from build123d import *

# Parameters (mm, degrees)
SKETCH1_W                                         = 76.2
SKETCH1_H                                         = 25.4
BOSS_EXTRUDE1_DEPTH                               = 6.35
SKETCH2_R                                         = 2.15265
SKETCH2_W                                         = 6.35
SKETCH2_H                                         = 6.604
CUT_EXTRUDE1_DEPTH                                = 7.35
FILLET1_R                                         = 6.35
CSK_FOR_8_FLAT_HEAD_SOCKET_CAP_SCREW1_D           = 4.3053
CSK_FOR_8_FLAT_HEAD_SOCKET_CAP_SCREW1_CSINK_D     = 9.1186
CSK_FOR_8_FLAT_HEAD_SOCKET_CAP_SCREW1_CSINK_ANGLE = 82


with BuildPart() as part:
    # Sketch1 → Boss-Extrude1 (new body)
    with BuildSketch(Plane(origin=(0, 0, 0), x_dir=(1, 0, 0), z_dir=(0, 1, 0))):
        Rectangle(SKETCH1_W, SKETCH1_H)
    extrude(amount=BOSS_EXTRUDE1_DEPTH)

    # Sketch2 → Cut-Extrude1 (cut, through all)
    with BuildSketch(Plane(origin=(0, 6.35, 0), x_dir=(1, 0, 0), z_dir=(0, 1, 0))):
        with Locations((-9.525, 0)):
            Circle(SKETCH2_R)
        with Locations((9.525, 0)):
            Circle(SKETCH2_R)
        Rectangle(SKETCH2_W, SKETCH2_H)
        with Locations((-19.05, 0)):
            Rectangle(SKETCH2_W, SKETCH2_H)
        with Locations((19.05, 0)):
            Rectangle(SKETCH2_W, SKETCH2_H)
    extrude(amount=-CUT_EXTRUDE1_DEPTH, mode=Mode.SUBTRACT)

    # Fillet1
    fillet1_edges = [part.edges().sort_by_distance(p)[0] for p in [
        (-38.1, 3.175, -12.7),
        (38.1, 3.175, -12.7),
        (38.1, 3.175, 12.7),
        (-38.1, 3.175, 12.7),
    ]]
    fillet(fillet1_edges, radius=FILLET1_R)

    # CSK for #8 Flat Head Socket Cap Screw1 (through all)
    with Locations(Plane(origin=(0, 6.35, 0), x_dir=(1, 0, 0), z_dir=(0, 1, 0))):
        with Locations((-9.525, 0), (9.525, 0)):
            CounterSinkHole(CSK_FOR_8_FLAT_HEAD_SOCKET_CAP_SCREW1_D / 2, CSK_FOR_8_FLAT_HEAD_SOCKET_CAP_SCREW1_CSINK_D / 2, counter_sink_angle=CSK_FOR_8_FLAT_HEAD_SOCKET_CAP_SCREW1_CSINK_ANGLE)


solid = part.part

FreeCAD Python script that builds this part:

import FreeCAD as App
import Part
import Sketcher
from FreeCAD import Vector
Q = App.Units.Quantity


def edges_at(feature, points):
    """Names of the edges that pass closest to the given points."""
    edges = feature.Shape.Edges
    near = lambda p: min(range(len(edges)), key=lambda i: edges[i].distToShape(Part.Vertex(*p))[0])
    return sorted({f"Edge{near(p) + 1}" for p in points})


def add_polygon(sketch, points):
    """Adds a closed chain of lines whose ends are joined by coincident constraints."""
    first, n = sketch.GeometryCount, len(points)
    for a, b in zip(points, points[1:] + points[:1]):
        sketch.addGeometry(Part.LineSegment(App.Vector(*a, 0), App.Vector(*b, 0)), False)
    for i in range(n):
        sketch.addConstraint(Sketcher.Constraint("Coincident", first + i, 2, first + (i + 1) % n, 1))

doc = App.newDocument("Part")
body = doc.addObject("PartDesign::Body", "Body")

sketch1 = doc.addObject("Sketcher::SketchObject", "Sketch")
body.addObject(sketch1)
sketch1.AttachmentSupport = (doc.XZ_Plane, [""])
sketch1.MapMode = "FlatFace"
add_polygon(sketch1, [(-38.1, -12.7), (-38.1, 12.7), (38.1, 12.7), (38.1, -12.7)])
sketch1.addConstraint(Sketcher.Constraint("Vertical", 0))
sketch1.addConstraint(Sketcher.Constraint("Horizontal", 1))
sketch1.addConstraint(Sketcher.Constraint("Vertical", 2))
sketch1.addConstraint(Sketcher.Constraint("Horizontal", 3))
sketch1.addConstraint(Sketcher.Constraint("Symmetric", 0, 2, 2, 2, -1, 1))
sketch1.addConstraint(Sketcher.Constraint("DistanceX", 1, 1, 1, 2, Q("3 in")))
sketch1.addConstraint(Sketcher.Constraint("DistanceY", 0, 1, 0, 2, Q("1 in")))
pad1 = doc.addObject("PartDesign::Pad", "Pad")
body.addObject(pad1)
pad1.Profile = sketch1
pad1.Length = Q("0.25 in")
pad1.Reversed = True

sketch2 = doc.addObject("Sketcher::SketchObject", "Sketch001")
body.addObject(sketch2)
sketch2.AttachmentSupport = (doc.XZ_Plane, [""])
sketch2.MapMode = "FlatFace"
sketch2.AttachmentOffset = App.Placement(Vector(0, 0, -0.25 * 25.4), App.Rotation())
sketch2.addGeometry(Part.Circle(Vector(-9.525, 0, 0), Vector(0, 0, 1), 2.15265), False)
sketch2.addGeometry(Part.Circle(Vector(9.525, 0, 0), Vector(0, 0, 1), 2.15265), False)
add_polygon(sketch2, [(-3.175, -3.302), (-3.175, 3.302), (3.175, 3.302), (3.175, -3.302)])
add_polygon(sketch2, [(-22.225, -3.302), (-22.225, 3.302), (-15.875, 3.302), (-15.875, -3.302)])
add_polygon(sketch2, [(15.875, -3.302), (15.875, 3.302), (22.225, 3.302), (22.225, -3.302)])
sketch2.addConstraint(Sketcher.Constraint("Vertical", 2))
sketch2.addConstraint(Sketcher.Constraint("Horizontal", 3))
sketch2.addConstraint(Sketcher.Constraint("Vertical", 4))
sketch2.addConstraint(Sketcher.Constraint("Horizontal", 5))
sketch2.addConstraint(Sketcher.Constraint("Vertical", 6))
sketch2.addConstraint(Sketcher.Constraint("Horizontal", 7))
sketch2.addConstraint(Sketcher.Constraint("Vertical", 8))
sketch2.addConstraint(Sketcher.Constraint("Horizontal", 9))
sketch2.addConstraint(Sketcher.Constraint("Vertical", 10))
sketch2.addConstraint(Sketcher.Constraint("Horizontal", 11))
sketch2.addConstraint(Sketcher.Constraint("Vertical", 12))
sketch2.addConstraint(Sketcher.Constraint("Horizontal", 13))
sketch2.addConstraint(Sketcher.Constraint("Equal", 0, 1))
sketch2.addConstraint(Sketcher.Constraint("Symmetric", 0, 3, 1, 3, -1, 1))
sketch2.addConstraint(Sketcher.Constraint("Symmetric", 2, 2, 4, 2, -1, 1))
sketch2.addConstraint(Sketcher.Constraint("Symmetric", 8, 2, 10, 2, -1, 1))
sketch2.addConstraint(Sketcher.Constraint("Symmetric", 6, 2, 12, 2, -1, 1))
sketch2.addConstraint(Sketcher.Constraint("PointOnObject", 0, 3, -1))
sketch2.addConstraint(Sketcher.Constraint("Horizontal", 3, 2, 6, 2))
sketch2.addConstraint(Sketcher.Constraint("Horizontal", 5, 2, 8, 2))
sketch2.addConstraint(Sketcher.Constraint("Equal", 5, 7))
sketch2.addConstraint(Sketcher.Constraint("DistanceX", 6, 2, 3, 2, Q("1 in")))
sketch2.addConstraint(Sketcher.Constraint("Diameter", 0, Q("0.1695 in")))
sketch2.addConstraint(Sketcher.Constraint("DistanceX", 3, 1, 3, 2, Q("0.25 in")))
sketch2.addConstraint(Sketcher.Constraint("DistanceY", 2, 1, 2, 2, Q("0.26 in")))
sketch2.addConstraint(Sketcher.Constraint("DistanceX", 2, 2, 1, 3, Q("0.5 in")))
pocket1 = doc.addObject("PartDesign::Pocket", "Pocket")
body.addObject(pocket1)
pocket1.Profile = sketch2
pocket1.Type = "ThroughAll"
pocket1.Reversed = True
doc.recompute()

fillet = doc.addObject("PartDesign::Fillet", "Fillet")
body.addObject(fillet)
fillet.Base = (pocket1, edges_at(pocket1, [
    (-38.1, 3.175, -12.7),
    (38.1, 3.175, -12.7),
    (38.1, 3.175, 12.7),
    (-38.1, 3.175, 12.7),
]))
fillet.Radius = Q("0.25 in")

sketch3 = doc.addObject("Sketcher::SketchObject", "Sketch002")
body.addObject(sketch3)
sketch3.AttachmentSupport = (doc.XZ_Plane, [""])
sketch3.MapMode = "FlatFace"
sketch3.AttachmentOffset = App.Placement(Vector(0, 0, -0.25 * 25.4), App.Rotation())
sketch3.addGeometry(Part.Circle(Vector(-9.525, 0, 0), Vector(0, 0, 1), 2.15265), False)
sketch3.addGeometry(Part.Circle(Vector(9.525, 0, 0), Vector(0, 0, 1), 2.15265), False)
sketch3.addConstraint(Sketcher.Constraint("Equal", 0, 1))
sketch3.addConstraint(Sketcher.Constraint("Symmetric", 0, 3, 1, 3, -1, 1))
sketch3.addConstraint(Sketcher.Constraint("PointOnObject", 0, 3, -1))
sketch3.addConstraint(Sketcher.Constraint("Diameter", 0, Q("0.1695 in")))
sketch3.addConstraint(Sketcher.Constraint("DistanceX", 0, 3, 1, 3, Q("0.75 in")))
doc.recompute()
hole = doc.addObject("PartDesign::Hole", "Hole")
body.addObject(hole)
hole.Profile = sketch3
hole.ThreadType = "None"
hole.Diameter = Q("0.1695 in")
hole.DepthType = "ThroughAll"
hole.HoleCutType = "Countersink"
hole.HoleCutDiameter = Q("0.359 in")
hole.HoleCutCountersinkAngle = 82
hole.Reversed = True

doc.recompute()
